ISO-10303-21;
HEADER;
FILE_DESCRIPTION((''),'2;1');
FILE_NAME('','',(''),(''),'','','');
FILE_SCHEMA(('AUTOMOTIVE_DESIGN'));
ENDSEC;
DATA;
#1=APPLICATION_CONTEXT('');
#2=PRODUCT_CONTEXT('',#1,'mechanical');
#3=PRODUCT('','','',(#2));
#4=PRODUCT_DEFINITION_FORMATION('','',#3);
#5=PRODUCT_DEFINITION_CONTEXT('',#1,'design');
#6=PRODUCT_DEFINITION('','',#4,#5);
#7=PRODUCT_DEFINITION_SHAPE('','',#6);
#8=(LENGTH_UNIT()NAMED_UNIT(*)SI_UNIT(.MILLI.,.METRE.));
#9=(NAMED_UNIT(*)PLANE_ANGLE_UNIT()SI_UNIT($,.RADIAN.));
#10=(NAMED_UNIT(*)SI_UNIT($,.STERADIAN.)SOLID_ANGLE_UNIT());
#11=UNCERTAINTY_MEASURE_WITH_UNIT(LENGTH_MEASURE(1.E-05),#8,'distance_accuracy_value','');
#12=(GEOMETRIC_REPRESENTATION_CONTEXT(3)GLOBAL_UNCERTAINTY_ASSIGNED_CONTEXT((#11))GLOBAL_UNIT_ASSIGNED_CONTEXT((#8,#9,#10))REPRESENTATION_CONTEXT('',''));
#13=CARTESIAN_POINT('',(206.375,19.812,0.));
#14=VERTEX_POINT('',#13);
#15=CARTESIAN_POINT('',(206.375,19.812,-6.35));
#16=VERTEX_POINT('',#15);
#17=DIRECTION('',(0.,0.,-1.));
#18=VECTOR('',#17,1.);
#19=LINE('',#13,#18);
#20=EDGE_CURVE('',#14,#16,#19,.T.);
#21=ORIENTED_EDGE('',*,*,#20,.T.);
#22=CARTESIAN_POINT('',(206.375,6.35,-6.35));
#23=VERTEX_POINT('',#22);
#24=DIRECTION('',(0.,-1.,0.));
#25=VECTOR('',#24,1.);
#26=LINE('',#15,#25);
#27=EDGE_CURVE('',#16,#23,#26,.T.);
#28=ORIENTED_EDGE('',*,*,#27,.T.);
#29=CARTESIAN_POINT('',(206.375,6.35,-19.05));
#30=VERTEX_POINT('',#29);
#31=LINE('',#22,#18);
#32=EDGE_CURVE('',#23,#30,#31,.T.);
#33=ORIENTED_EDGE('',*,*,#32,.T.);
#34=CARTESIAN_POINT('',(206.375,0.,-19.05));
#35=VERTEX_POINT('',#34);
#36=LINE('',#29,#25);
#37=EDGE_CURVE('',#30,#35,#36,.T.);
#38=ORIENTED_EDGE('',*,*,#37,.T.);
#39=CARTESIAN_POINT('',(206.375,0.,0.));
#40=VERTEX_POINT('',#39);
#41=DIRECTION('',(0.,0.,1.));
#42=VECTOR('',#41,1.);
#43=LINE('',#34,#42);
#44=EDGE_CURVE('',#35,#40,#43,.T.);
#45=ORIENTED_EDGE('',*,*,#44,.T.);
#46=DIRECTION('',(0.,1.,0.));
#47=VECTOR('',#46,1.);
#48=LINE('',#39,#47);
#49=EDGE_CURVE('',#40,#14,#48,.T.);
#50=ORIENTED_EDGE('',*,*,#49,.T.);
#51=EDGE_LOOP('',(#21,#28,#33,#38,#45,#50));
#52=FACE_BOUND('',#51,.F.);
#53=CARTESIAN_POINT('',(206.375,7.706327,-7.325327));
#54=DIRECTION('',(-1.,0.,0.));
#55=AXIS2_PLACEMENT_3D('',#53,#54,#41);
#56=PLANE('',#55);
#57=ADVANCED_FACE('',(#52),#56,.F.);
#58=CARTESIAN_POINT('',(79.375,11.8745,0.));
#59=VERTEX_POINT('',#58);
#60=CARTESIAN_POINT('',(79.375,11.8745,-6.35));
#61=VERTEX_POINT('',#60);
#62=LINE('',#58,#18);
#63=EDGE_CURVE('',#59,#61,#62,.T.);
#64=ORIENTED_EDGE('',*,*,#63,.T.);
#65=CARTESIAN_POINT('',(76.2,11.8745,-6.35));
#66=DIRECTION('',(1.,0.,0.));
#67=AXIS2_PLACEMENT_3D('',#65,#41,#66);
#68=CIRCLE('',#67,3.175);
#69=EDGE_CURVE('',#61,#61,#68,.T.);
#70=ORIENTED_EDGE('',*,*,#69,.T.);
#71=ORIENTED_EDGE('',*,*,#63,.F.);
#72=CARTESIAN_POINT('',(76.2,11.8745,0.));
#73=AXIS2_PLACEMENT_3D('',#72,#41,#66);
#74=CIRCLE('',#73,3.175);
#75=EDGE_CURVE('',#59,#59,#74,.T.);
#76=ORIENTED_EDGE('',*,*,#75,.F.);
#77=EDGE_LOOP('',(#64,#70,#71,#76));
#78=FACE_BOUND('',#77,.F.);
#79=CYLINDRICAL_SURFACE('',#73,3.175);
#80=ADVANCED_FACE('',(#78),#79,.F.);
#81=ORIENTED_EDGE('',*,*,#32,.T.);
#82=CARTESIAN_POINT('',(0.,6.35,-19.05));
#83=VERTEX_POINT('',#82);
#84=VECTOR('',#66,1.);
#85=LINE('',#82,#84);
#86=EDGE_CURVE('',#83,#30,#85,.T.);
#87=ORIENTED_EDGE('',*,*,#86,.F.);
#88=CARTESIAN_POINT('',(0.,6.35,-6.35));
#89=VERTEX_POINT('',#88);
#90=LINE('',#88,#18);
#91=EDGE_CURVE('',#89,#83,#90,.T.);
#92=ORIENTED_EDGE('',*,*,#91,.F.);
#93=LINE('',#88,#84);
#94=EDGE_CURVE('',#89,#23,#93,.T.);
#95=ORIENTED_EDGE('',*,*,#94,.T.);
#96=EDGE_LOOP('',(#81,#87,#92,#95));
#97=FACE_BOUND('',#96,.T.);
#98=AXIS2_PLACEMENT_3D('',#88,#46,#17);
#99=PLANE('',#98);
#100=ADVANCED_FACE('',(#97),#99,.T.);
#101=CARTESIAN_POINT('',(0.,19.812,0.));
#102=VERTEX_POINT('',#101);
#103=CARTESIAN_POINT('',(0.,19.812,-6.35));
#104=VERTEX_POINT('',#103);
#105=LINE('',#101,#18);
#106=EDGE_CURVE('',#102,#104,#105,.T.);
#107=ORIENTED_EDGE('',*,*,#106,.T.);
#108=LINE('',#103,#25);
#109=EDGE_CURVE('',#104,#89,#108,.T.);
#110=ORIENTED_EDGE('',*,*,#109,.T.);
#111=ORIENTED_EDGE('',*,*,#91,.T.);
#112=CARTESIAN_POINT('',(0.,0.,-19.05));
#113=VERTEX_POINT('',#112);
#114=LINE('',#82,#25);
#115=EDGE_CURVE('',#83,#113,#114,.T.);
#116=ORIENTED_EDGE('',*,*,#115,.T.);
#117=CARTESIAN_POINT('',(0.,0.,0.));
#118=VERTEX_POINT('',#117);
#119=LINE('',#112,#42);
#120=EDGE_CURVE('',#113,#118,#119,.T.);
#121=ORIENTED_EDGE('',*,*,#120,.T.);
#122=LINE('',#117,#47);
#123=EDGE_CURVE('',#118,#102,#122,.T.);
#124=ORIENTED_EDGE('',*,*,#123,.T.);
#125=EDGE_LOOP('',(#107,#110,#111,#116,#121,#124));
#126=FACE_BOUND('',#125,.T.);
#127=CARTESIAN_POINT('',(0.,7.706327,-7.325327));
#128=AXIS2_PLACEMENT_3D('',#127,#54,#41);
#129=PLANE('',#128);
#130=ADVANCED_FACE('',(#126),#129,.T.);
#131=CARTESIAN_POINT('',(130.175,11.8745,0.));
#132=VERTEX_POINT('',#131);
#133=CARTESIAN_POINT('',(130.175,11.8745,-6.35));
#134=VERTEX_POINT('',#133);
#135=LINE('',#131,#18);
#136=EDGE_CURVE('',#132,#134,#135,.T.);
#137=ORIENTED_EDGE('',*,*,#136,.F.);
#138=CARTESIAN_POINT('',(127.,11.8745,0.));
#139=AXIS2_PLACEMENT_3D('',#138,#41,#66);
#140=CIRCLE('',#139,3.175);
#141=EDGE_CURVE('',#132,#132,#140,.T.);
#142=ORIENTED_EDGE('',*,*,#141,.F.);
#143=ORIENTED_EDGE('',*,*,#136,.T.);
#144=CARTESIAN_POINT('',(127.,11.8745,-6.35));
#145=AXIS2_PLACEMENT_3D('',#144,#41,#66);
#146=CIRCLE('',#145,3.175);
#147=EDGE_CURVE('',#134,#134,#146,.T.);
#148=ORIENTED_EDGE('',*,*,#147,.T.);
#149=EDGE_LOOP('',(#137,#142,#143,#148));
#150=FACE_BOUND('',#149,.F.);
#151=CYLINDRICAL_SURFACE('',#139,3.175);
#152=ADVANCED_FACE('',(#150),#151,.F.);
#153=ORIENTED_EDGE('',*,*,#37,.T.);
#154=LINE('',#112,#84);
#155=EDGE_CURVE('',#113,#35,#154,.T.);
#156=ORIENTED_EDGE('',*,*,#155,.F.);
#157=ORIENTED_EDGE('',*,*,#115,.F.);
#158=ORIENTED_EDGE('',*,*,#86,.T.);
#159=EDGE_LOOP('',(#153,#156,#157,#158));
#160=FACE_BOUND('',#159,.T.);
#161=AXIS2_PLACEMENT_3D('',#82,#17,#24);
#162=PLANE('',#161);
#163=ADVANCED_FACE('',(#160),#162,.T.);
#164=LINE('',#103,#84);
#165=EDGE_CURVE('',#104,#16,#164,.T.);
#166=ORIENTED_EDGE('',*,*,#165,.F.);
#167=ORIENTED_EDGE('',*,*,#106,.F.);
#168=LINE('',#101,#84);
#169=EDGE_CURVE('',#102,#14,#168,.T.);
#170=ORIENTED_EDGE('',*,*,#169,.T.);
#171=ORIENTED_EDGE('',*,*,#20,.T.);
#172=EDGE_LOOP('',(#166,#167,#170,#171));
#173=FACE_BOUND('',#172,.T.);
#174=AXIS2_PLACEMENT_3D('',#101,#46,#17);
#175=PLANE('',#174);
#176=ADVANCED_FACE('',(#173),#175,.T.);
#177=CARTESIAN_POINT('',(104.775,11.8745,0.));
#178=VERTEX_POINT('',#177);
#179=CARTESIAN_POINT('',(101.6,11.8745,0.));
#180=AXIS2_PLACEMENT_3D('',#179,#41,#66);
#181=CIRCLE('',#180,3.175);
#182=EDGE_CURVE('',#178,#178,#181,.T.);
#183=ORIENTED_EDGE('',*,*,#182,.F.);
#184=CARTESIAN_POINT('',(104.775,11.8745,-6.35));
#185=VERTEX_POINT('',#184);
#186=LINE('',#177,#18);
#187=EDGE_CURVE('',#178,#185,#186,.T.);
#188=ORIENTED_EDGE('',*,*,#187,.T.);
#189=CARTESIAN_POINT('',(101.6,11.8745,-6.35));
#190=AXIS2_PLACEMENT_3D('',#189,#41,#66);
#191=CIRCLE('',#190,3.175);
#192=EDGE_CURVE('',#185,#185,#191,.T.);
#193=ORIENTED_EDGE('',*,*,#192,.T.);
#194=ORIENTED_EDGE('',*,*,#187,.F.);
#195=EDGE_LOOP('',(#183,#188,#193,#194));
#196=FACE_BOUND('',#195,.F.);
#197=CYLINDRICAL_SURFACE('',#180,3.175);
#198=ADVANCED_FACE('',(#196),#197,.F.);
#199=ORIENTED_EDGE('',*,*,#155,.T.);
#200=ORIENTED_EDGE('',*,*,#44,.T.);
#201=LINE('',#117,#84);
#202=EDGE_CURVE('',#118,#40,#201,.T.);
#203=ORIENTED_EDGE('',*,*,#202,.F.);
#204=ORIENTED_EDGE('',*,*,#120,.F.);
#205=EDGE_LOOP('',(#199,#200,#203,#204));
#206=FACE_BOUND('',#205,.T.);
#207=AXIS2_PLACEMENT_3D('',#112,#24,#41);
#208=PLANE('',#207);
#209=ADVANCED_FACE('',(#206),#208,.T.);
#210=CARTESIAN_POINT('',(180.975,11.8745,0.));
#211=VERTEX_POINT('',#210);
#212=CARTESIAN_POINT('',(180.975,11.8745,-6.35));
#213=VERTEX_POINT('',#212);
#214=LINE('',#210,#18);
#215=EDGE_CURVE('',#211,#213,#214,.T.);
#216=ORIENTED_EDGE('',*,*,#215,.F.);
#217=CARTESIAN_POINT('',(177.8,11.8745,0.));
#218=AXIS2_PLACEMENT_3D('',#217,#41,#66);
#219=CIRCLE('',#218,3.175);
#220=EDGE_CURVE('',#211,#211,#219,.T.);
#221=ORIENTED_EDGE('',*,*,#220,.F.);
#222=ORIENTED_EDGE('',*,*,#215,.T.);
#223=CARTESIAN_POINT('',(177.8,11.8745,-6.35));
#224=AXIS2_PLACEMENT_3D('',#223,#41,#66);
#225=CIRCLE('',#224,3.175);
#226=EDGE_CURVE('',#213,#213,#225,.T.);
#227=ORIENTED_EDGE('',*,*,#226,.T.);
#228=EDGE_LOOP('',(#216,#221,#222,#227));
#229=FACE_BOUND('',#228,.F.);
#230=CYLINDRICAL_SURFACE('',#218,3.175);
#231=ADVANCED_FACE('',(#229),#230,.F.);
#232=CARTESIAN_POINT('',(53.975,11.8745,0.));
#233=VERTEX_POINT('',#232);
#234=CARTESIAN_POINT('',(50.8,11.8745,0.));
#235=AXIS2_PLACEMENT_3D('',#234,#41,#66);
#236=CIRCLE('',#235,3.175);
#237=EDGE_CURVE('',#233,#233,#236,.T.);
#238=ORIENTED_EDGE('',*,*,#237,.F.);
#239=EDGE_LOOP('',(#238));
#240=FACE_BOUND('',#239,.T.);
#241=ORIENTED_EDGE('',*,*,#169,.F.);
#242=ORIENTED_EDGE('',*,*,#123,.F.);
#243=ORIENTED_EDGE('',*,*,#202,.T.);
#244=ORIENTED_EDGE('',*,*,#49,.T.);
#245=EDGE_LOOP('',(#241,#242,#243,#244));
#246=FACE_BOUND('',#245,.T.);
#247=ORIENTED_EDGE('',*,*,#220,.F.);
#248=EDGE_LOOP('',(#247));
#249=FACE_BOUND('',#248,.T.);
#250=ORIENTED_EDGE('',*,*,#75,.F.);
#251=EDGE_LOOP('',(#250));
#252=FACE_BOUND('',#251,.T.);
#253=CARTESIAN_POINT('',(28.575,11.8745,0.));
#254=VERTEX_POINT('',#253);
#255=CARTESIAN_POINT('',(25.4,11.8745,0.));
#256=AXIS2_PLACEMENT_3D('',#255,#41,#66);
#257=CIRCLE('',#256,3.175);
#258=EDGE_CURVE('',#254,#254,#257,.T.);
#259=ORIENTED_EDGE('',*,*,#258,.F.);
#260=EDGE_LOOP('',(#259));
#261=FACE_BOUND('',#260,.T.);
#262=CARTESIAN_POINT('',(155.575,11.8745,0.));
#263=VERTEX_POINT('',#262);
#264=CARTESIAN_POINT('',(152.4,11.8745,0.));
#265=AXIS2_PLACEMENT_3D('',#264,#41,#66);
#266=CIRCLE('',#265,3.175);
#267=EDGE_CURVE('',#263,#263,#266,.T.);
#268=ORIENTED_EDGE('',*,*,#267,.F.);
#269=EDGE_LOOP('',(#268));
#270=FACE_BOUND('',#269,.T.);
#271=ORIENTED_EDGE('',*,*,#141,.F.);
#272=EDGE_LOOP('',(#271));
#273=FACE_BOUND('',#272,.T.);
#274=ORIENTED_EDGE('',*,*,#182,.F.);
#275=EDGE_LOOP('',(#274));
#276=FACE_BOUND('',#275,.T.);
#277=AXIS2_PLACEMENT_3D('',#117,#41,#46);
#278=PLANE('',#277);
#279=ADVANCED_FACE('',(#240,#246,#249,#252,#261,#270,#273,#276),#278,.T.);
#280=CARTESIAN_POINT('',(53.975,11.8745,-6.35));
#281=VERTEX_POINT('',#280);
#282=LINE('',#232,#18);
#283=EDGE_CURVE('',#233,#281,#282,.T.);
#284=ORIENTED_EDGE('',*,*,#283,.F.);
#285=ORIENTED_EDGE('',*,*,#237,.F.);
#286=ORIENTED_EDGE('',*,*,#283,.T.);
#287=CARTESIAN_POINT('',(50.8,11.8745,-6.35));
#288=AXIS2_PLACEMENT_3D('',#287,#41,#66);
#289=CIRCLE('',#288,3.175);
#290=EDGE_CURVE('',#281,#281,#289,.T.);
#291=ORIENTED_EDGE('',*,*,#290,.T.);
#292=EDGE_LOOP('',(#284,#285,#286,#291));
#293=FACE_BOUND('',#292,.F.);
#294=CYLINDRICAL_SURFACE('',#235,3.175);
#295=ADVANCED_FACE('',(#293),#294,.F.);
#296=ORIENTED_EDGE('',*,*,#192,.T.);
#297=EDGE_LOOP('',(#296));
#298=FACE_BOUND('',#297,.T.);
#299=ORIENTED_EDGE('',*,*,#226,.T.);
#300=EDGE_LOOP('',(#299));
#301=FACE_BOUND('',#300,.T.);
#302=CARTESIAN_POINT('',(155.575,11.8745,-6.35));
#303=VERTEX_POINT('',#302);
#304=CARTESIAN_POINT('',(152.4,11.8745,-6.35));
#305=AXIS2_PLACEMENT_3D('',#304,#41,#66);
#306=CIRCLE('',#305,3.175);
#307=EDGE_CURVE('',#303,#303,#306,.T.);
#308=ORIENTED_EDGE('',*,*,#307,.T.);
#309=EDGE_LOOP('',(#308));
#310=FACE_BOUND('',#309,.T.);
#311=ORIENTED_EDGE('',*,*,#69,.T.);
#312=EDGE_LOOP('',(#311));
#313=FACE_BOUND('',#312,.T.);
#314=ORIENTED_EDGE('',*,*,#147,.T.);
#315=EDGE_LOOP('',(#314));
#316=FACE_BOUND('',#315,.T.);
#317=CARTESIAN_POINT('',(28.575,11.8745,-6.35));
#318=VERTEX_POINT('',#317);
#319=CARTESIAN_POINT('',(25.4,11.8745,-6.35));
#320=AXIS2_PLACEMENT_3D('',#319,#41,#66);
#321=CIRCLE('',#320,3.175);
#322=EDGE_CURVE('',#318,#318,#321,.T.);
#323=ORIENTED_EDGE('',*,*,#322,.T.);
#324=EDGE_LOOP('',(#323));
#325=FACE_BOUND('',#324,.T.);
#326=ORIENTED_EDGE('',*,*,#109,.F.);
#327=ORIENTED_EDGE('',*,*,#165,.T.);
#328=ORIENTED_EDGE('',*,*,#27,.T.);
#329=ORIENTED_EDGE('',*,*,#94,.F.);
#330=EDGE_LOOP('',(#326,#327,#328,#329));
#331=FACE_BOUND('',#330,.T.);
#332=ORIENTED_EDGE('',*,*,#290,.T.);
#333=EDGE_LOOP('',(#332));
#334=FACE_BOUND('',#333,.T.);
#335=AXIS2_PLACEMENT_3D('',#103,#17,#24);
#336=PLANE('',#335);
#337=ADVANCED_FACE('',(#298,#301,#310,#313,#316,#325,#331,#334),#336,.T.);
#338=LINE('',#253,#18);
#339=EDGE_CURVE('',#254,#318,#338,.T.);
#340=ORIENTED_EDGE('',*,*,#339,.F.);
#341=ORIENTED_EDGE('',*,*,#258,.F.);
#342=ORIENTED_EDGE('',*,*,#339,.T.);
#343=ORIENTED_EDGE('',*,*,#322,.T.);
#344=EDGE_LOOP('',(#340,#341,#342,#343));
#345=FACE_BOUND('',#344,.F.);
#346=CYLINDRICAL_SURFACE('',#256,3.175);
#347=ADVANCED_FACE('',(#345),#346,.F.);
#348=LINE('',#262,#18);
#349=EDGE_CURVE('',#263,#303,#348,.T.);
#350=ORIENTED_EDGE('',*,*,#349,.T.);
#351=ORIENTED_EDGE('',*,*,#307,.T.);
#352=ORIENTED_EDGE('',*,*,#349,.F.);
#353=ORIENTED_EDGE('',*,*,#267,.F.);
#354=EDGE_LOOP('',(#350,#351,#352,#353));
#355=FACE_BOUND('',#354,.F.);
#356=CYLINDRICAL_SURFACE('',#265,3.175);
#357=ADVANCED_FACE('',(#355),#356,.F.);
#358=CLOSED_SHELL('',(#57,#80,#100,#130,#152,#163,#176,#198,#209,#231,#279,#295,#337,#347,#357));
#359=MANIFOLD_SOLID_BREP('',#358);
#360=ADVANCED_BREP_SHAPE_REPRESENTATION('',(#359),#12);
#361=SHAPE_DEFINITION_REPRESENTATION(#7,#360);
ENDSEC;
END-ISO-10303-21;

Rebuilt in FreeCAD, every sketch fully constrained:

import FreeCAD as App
import Part
import Sketcher
Q = App.Units.Quantity

doc = App.newDocument("Part")
body = doc.addObject("PartDesign::Body", "Body")

sketch1 = doc.addObject("Sketcher::SketchObject", "Sketch")
body.addObject(sketch1)
sketch1.AttachmentSupport = (doc.YZ_Plane, [""])
sketch1.MapMode = "FlatFace"
sketch1.addGeometry([
    Part.LineSegment(App.Vector(20, 0, 0), App.Vector(0, 0, 0)),
    Part.LineSegment(App.Vector(0, 0, 0), App.Vector(0, -19, 0)),
    Part.LineSegment(App.Vector(0, -19, 0), App.Vector(6, -19, 0)),
    Part.LineSegment(App.Vector(6, -19, 0), App.Vector(6, -6, 0)),
    Part.LineSegment(App.Vector(6, -6, 0), App.Vector(20, -6, 0)),
    Part.LineSegment(App.Vector(20, -6, 0), App.Vector(20, 0, 0)),
], False)
sketch1.addConstraint([
    Sketcher.Constraint("Coincident", 0, 2, 1, 1),
    Sketcher.Constraint("Coincident", 1, 2, 2, 1),
    Sketcher.Constraint("Coincident", 2, 2, 3, 1),
    Sketcher.Constraint("Coincident", 3, 2, 4, 1),
    Sketcher.Constraint("Coincident", 4, 2, 5, 1),
    Sketcher.Constraint("Coincident", 5, 2, 0, 1),
    Sketcher.Constraint("Horizontal", 0),
    Sketcher.Constraint("Vertical", 1),
    Sketcher.Constraint("Horizontal", 2),
    Sketcher.Constraint("Vertical", 3),
    Sketcher.Constraint("Horizontal", 4),
    Sketcher.Constraint("Vertical", 5),
    Sketcher.Constraint("Coincident", 0, 2, -1, 1),
    Sketcher.Constraint("Equal", 2, 5),
    Sketcher.Constraint("DistanceY", 3, 1, 3, 2, Q("0.5 in")),
    Sketcher.Constraint("DistanceX", 0, 2, 0, 1, Q("0.78 in")),
    Sketcher.Constraint("DistanceX", 2, 1, 2, 2, Q("0.25 in")),
])
pad1 = doc.addObject("PartDesign::Pad", "Pad")
body.addObject(pad1)
pad1.Profile = sketch1
pad1.Length = Q("8.125 in")

sketch2 = doc.addObject("Sketcher::SketchObject", "Sketch001")
body.addObject(sketch2)
sketch2.AttachmentSupport = (doc.XY_Plane, [""])
sketch2.MapMode = "FlatFace"
sketch2.addGeometry(Part.Circle(App.Vector(25.4, 11.9, 0), App.Vector(0, 0, 1), 3.2), False)
sketch2.addConstraint([
    Sketcher.Constraint("Diameter", 0, Q("0.25 in")),
    Sketcher.Constraint("DistanceX", -1, 1, 0, 3, Q("1 in")),
    Sketcher.Constraint("DistanceY", -1, 1, 0, 3, Q("0.4675 in")),
])
pocket1 = doc.addObject("PartDesign::Pocket", "Pocket")
body.addObject(pocket1)
pocket1.Profile = sketch2
pocket1.Type = "ThroughAll"
doc.recompute()

linearpattern = doc.addObject("PartDesign::LinearPattern", "LinearPattern")
body.addObject(linearpattern)
linearpattern.Originals = [pocket1]
linearpattern.Direction = (doc.X_Axis, [""])
linearpattern.Mode = "offset"
linearpattern.Offset = Q("1 in")
linearpattern.Occurrences = 7
body.Tip = linearpattern

doc.recompute()
